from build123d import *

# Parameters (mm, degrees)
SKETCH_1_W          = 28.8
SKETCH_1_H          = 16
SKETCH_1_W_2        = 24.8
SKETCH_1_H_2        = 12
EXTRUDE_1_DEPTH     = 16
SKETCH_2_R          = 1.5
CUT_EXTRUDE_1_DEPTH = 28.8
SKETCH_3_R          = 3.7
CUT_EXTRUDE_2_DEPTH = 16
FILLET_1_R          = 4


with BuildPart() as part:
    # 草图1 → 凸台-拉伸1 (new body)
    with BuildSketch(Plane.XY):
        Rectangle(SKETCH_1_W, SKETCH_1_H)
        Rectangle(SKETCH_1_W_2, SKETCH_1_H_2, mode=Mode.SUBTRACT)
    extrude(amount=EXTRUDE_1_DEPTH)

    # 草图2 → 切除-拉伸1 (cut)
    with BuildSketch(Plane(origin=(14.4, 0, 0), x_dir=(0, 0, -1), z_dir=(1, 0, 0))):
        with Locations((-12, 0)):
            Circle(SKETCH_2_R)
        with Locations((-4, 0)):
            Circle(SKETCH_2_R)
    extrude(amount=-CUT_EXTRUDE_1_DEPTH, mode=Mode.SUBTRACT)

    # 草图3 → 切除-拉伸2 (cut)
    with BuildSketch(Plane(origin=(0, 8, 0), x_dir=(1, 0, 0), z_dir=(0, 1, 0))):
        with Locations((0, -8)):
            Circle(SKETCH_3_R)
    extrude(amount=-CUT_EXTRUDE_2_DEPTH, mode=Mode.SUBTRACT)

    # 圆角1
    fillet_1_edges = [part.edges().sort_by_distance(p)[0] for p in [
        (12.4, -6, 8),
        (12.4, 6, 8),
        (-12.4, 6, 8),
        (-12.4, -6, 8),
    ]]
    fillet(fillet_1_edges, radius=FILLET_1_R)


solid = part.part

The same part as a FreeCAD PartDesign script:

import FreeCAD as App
import Part
import Sketcher


def edges_at(feature, points):
    """Names of the edges that pass closest to the given points."""
    edges = feature.Shape.Edges
    near = lambda p: min(range(len(edges)), key=lambda i: edges[i].distToShape(Part.Vertex(*p))[0])
    return sorted({f"Edge{near(p) + 1}" for p in points})

doc = App.newDocument("Part")
body = doc.addObject("PartDesign::Body", "Body")

sketch1 = doc.addObject("Sketcher::SketchObject", "Sketch")
body.addObject(sketch1)
sketch1.AttachmentSupport = (doc.XY_Plane, [""])
sketch1.MapMode = "FlatFace"
sketch1.addGeometry([
    Part.LineSegment(App.Vector(-14, 8, 0), App.Vector(-14, -8, 0)),
    Part.LineSegment(App.Vector(-14, -8, 0), App.Vector(14, -8, 0)),
    Part.LineSegment(App.Vector(14, -8, 0), App.Vector(14, 8, 0)),
    Part.LineSegment(App.Vector(14, 8, 0), App.Vector(-14, 8, 0)),
    Part.LineSegment(App.Vector(12, -6, 0), App.Vector(-12, -6, 0)),
    Part.LineSegment(App.Vector(-12, -6, 0), App.Vector(-12, 6, 0)),
    Part.LineSegment(App.Vector(-12, 6, 0), App.Vector(12, 6, 0)),
    Part.LineSegment(App.Vector(12, 6, 0), App.Vector(12, -6, 0)),
], False)
sketch1.addConstraint([
    Sketcher.Constraint("Coincident", 0, 2, 1, 1),
    Sketcher.Constraint("Coincident", 1, 2, 2, 1),
    Sketcher.Constraint("Coincident", 2, 2, 3, 1),
    Sketcher.Constraint("Coincident", 3, 2, 0, 1),
    Sketcher.Constraint("Coincident", 4, 2, 5, 1),
    Sketcher.Constraint("Coincident", 5, 2, 6, 1),
    Sketcher.Constraint("Coincident", 6, 2, 7, 1),
    Sketcher.Constraint("Coincident", 7, 2, 4, 1),
    Sketcher.Constraint("Vertical", 0),
    Sketcher.Constraint("Horizontal", 1),
    Sketcher.Constraint("Vertical", 2),
    Sketcher.Constraint("Horizontal", 3),
    Sketcher.Constraint("Horizontal", 4),
    Sketcher.Constraint("Vertical", 5),
    Sketcher.Constraint("Horizontal", 6),
    Sketcher.Constraint("Vertical", 7),
    Sketcher.Constraint("Symmetric", 0, 2, 2, 2, -1, 1),
    Sketcher.Constraint("Symmetric", 4, 2, 6, 2, -1, 1),
    Sketcher.Constraint("DistanceY", 0, 2, 0, 1, 16.0),
    Sketcher.Constraint("DistanceY", 5, 1, 5, 2, 12.0),
    Sketcher.Constraint("DistanceX", 1, 1, 1, 2, 28.8),
    Sketcher.Constraint("DistanceX", 4, 2, 4, 1, 24.8),
])
pad1 = doc.addObject("PartDesign::Pad", "Pad")
body.addObject(pad1)
pad1.Profile = sketch1
pad1.Length = 16

sketch2 = doc.addObject("Sketcher::SketchObject", "Sketch001")
body.addObject(sketch2)
sketch2.AttachmentSupport = (doc.YZ_Plane, [""])
sketch2.MapMode = "FlatFace"
sketch2.AttachmentOffset = App.Placement(App.Vector(0, 0, 14.4), App.Rotation())
sketch2.addGeometry([
    Part.Circle(App.Vector(0, 12, 0), App.Vector(0, 0, 1), 1.5),
    Part.Circle(App.Vector(0, 4, 0), App.Vector(0, 0, 1), 1.5),
], False)
sketch2.addConstraint([
    Sketcher.Constraint("Equal", 0, 1),
    Sketcher.Constraint("PointOnObject", 0, 3, -2),
    Sketcher.Constraint("PointOnObject", 1, 3, -2),
    Sketcher.Constraint("Diameter", 0, 3.0),
    Sketcher.Constraint("DistanceY", -1, 1, 0, 3, 12.0),
    Sketcher.Constraint("DistanceY", -1, 1, 1, 3, 4.0),
])
pocket1 = doc.addObject("PartDesign::Pocket", "Pocket")
body.addObject(pocket1)
pocket1.Profile = sketch2
pocket1.Length = 28.8

sketch3 = doc.addObject("Sketcher::SketchObject", "Sketch002")
body.addObject(sketch3)
sketch3.AttachmentSupport = (doc.XZ_Plane, [""])
sketch3.MapMode = "FlatFace"
sketch3.AttachmentOffset = App.Placement(App.Vector(0, 0, -8), App.Rotation())
sketch3.addGeometry(Part.Circle(App.Vector(0, 8, 0), App.Vector(0, 0, 1), 3.7), False)
sketch3.addConstraint([
    Sketcher.Constraint("PointOnObject", 0, 3, -2),
    Sketcher.Constraint("Diameter", 0, 7.4),
    Sketcher.Constraint("DistanceY", -1, 1, 0, 3, 8.0),
])
pocket2 = doc.addObject("PartDesign::Pocket", "Pocket001")
body.addObject(pocket2)
pocket2.Profile = sketch3
pocket2.Length = 16
pocket2.Reversed = True
doc.recompute()

fillet = doc.addObject("PartDesign::Fillet", "Fillet")
body.addObject(fillet)
fillet.Base = (pocket2, edges_at(pocket2, [
    (12.4, -6, 8),
    (12.4, 6, 8),
    (-12.4, 6, 8),
    (-12.4, -6, 8),
]))
fillet.Radius = 4

doc.recompute()
